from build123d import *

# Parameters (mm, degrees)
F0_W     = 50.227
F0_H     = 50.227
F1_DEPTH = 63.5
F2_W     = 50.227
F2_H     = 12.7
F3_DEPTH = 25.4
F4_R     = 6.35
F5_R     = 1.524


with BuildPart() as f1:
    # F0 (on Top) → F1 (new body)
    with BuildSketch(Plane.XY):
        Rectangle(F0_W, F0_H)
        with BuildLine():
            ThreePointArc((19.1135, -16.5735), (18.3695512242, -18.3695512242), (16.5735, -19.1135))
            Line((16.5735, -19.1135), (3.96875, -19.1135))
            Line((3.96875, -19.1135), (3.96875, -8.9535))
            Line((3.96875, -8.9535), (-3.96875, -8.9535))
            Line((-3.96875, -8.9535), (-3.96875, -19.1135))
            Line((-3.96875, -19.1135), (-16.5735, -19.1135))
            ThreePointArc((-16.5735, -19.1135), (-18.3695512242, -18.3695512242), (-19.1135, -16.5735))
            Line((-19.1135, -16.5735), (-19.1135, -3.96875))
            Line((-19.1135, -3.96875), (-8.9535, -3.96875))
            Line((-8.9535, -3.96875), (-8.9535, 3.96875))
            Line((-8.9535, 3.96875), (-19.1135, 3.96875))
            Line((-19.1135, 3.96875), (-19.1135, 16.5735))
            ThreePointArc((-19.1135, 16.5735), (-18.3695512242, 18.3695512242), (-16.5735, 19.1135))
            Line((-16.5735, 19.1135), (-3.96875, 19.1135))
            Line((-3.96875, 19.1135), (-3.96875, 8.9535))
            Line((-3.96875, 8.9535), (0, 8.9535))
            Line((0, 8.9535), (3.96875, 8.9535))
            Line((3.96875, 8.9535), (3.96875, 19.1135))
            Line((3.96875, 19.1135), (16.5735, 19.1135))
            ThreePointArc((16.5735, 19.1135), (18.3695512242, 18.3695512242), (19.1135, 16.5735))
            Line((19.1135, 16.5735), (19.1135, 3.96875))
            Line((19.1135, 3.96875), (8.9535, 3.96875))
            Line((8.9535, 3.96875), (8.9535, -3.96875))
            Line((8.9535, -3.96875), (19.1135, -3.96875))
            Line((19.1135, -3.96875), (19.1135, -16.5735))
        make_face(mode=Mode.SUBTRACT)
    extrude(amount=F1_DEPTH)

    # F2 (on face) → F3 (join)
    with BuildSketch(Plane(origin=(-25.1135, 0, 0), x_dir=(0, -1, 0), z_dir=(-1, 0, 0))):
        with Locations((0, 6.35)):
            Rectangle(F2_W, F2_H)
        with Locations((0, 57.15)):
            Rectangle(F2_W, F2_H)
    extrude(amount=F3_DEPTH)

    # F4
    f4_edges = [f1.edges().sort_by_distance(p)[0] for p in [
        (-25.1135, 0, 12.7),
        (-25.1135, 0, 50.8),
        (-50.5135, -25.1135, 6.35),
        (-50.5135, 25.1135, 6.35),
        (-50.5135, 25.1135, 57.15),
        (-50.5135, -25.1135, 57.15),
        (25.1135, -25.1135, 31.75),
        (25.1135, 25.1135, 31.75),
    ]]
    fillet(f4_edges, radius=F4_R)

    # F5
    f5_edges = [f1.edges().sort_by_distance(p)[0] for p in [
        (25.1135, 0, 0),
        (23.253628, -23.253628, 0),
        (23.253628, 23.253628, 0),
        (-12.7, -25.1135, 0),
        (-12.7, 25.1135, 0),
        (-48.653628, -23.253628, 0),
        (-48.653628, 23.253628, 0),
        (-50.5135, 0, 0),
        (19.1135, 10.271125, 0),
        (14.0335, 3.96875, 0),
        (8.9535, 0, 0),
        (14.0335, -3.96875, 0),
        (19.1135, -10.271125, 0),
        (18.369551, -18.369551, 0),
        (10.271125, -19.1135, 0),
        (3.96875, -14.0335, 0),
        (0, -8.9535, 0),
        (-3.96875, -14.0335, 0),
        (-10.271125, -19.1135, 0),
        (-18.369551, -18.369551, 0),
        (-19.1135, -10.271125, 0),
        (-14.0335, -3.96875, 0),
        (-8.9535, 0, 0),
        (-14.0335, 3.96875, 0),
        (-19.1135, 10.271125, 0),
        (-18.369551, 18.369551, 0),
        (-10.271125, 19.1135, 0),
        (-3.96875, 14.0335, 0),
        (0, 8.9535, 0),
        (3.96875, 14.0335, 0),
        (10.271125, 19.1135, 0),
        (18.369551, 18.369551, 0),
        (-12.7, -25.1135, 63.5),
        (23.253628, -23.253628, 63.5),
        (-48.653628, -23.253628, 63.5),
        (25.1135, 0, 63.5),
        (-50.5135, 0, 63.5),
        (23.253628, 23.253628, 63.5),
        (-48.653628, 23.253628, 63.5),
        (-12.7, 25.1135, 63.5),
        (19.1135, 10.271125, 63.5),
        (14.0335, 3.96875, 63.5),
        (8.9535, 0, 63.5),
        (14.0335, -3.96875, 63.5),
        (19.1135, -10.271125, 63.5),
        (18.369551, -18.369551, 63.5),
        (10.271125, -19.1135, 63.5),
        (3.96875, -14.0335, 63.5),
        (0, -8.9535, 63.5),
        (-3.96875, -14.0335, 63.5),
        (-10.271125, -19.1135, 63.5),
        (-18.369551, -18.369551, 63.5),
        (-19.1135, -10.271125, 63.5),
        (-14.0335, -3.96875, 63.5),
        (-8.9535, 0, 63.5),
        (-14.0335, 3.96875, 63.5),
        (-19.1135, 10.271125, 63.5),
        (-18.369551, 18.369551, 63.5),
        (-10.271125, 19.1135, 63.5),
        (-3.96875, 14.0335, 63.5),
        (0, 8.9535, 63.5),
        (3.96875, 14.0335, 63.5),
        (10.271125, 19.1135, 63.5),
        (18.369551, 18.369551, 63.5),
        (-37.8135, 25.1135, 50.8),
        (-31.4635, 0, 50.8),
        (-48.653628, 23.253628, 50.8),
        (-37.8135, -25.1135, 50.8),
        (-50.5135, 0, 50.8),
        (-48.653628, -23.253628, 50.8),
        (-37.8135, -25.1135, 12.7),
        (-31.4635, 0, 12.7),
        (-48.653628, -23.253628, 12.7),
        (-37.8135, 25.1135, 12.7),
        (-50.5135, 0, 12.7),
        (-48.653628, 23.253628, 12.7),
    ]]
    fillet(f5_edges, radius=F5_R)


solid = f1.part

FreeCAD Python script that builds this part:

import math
import FreeCAD as App
import Part
import Sketcher

V = App.Vector
Q = App.Units.Quantity


def edges_at(feature, points):
    """Names of the edges that pass closest to the given points."""
    edges = feature.Shape.Edges
    near = lambda p: min(range(len(edges)), key=lambda i: edges[i].distToShape(Part.Vertex(*p))[0])
    return sorted({f"Edge{near(p) + 1}" for p in points})


def add_polygon(sketch, points):
    """Adds a closed chain of lines whose ends are joined by coincident constraints."""
    first, n = sketch.GeometryCount, len(points)
    for a, b in zip(points, points[1:] + points[:1]):
        sketch.addGeometry(Part.LineSegment(App.Vector(*a, 0), App.Vector(*b, 0)), False)
    for i in range(n):
        sketch.addConstraint(Sketcher.Constraint("Coincident", first + i, 2, first + (i + 1) % n, 1))

doc = App.newDocument("Part")
body = doc.addObject("PartDesign::Body", "Body")

sketch1 = body.newObject("Sketcher::SketchObject", "Sketch")
sketch1.AttachmentSupport = (doc.getObject("XY_Plane"), [""])
sketch1.MapMode = "FlatFace"
add_polygon(sketch1, [(-25.1, 25.1), (-25.1, -25.1), (25.1, -25.1), (25.1, 25.1)])
sketch1.addGeometry(Part.LineSegment(V(19.1, -4, 0), V(19.1, -16.6, 0)), False)
sketch1.addGeometry(Part.ArcOfCircle(Part.Circle(V(16.6, -16.6, 0), V(0, 0, 1), 2.5), math.radians(-90), math.radians(0)), False)
sketch1.addGeometry(Part.LineSegment(V(16.6, -19.1, 0), V(4, -19.1, 0)), False)
sketch1.addGeometry(Part.LineSegment(V(4, -19.1, 0), V(4, -9, 0)), False)
sketch1.addGeometry(Part.LineSegment(V(4, -9, 0), V(-4, -9, 0)), False)
sketch1.addGeometry(Part.LineSegment(V(-4, -9, 0), V(-4, -19.1, 0)), False)
sketch1.addGeometry(Part.LineSegment(V(-4, -19.1, 0), V(-16.6, -19.1, 0)), False)
sketch1.addGeometry(Part.ArcOfCircle(Part.Circle(V(-16.6, -16.6, 0), V(0, 0, 1), 2.5), math.radians(180), math.radians(270)), False)
sketch1.addGeometry(Part.LineSegment(V(-19.1, -16.6, 0), V(-19.1, -4, 0)), False)
sketch1.addGeometry(Part.LineSegment(V(-19.1, -4, 0), V(-9, -4, 0)), False)
sketch1.addGeometry(Part.LineSegment(V(-9, -4, 0), V(-9, 4, 0)), False)
sketch1.addGeometry(Part.LineSegment(V(-9, 4, 0), V(-19.1, 4, 0)), False)
sketch1.addGeometry(Part.LineSegment(V(-19.1, 4, 0), V(-19.1, 16.6, 0)), False)
sketch1.addGeometry(Part.ArcOfCircle(Part.Circle(V(-16.6, 16.6, 0), V(0, 0, 1), 2.5), math.radians(90), math.radians(180)), False)
sketch1.addGeometry(Part.LineSegment(V(-16.6, 19.1, 0), V(-4, 19.1, 0)), False)
sketch1.addGeometry(Part.LineSegment(V(-4, 19.1, 0), V(-4, 9, 0)), False)
sketch1.addGeometry(Part.LineSegment(V(-4, 9, 0), V(4, 9, 0)), False)
sketch1.addGeometry(Part.LineSegment(V(4, 9, 0), V(4, 19.1, 0)), False)
sketch1.addGeometry(Part.LineSegment(V(4, 19.1, 0), V(16.6, 19.1, 0)), False)
sketch1.addGeometry(Part.ArcOfCircle(Part.Circle(V(16.6, 16.6, 0), V(0, 0, 1), 2.5), math.radians(0), math.radians(90)), False)
sketch1.addGeometry(Part.LineSegment(V(19.1, 16.6, 0), V(19.1, 4, 0)), False)
sketch1.addGeometry(Part.LineSegment(V(19.1, 4, 0), V(9, 4, 0)), False)
sketch1.addGeometry(Part.LineSegment(V(9, 4, 0), V(9, -4, 0)), False)
sketch1.addGeometry(Part.LineSegment(V(9, -4, 0), V(19.1, -4, 0)), False)
sketch1.addConstraint([
    Sketcher.Constraint("Tangent", 4, 2, 5, 2),
    Sketcher.Constraint("Tangent", 5, 1, 6, 1),
    Sketcher.Constraint("Coincident", 6, 2, 7, 1),
    Sketcher.Constraint("Coincident", 7, 2, 8, 1),
    Sketcher.Constraint("Coincident", 8, 2, 9, 1),
    Sketcher.Constraint("Coincident", 9, 2, 10, 1),
    Sketcher.Constraint("Tangent", 10, 2, 11, 2),
    Sketcher.Constraint("Tangent", 11, 1, 12, 1),
    Sketcher.Constraint("Coincident", 12, 2, 13, 1),
    Sketcher.Constraint("Coincident", 13, 2, 14, 1),
    Sketcher.Constraint("Coincident", 14, 2, 15, 1),
    Sketcher.Constraint("Coincident", 15, 2, 16, 1),
    Sketcher.Constraint("Tangent", 16, 2, 17, 2),
    Sketcher.Constraint("Tangent", 17, 1, 18, 1),
    Sketcher.Constraint("Coincident", 18, 2, 19, 1),
    Sketcher.Constraint("Coincident", 19, 2, 20, 1),
    Sketcher.Constraint("Coincident", 20, 2, 21, 1),
    Sketcher.Constraint("Coincident", 21, 2, 22, 1),
    Sketcher.Constraint("Tangent", 22, 2, 23, 2),
    Sketcher.Constraint("Tangent", 23, 1, 24, 1),
    Sketcher.Constraint("Coincident", 24, 2, 25, 1),
    Sketcher.Constraint("Coincident", 25, 2, 26, 1),
    Sketcher.Constraint("Coincident", 26, 2, 27, 1),
    Sketcher.Constraint("Coincident", 27, 2, 4, 1),
    Sketcher.Constraint("Vertical", 0),
    Sketcher.Constraint("Horizontal", 1),
    Sketcher.Constraint("Vertical", 2),
    Sketcher.Constraint("Horizontal", 3),
    Sketcher.Constraint("Vertical", 4),
    Sketcher.Constraint("Horizontal", 6),
    Sketcher.Constraint("Vertical", 7),
    Sketcher.Constraint("Horizontal", 8),
    Sketcher.Constraint("Vertical", 9),
    Sketcher.Constraint("Horizontal", 10),
    Sketcher.Constraint("Vertical", 12),
    Sketcher.Constraint("Horizontal", 13),
    Sketcher.Constraint("Vertical", 14),
    Sketcher.Constraint("Horizontal", 15),
    Sketcher.Constraint("Vertical", 16),
    Sketcher.Constraint("Horizontal", 18),
    Sketcher.Constraint("Vertical", 19),
    Sketcher.Constraint("Horizontal", 20),
    Sketcher.Constraint("Vertical", 21),
    Sketcher.Constraint("Horizontal", 22),
    Sketcher.Constraint("Vertical", 24),
    Sketcher.Constraint("Horizontal", 25),
    Sketcher.Constraint("Vertical", 26),
    Sketcher.Constraint("Horizontal", 27),
    Sketcher.Constraint("Equal", 5, 11),
    Sketcher.Constraint("Equal", 11, 17),
    Sketcher.Constraint("Equal", 17, 23),
    Sketcher.Constraint("Symmetric", 5, 3, 17, 3, -1, 1),
    Sketcher.Constraint("Symmetric", 11, 3, 23, 3, -1, 1),
    Sketcher.Constraint("Symmetric", 0, 2, 2, 2, -1, 1),
    Sketcher.Constraint("Symmetric", 7, 2, 19, 2, -1, 1),
    Sketcher.Constraint("Symmetric", 13, 2, 25, 2, -1, 1),
    Sketcher.Constraint("Symmetric", 5, 3, 11, 3, -2),
    Sketcher.Constraint("Horizontal", 15, 2, 24, 2),
    Sketcher.Constraint("Horizontal", 13, 2, 26, 2),
    Sketcher.Constraint("Vertical", 9, 2, 18, 2),
    Sketcher.Constraint("Vertical", 7, 2, 20, 2),
    Sketcher.Constraint("Equal", 3, 0),
    Sketcher.Constraint("Equal", 22, 4),
    Sketcher.Constraint("Equal", 27, 7),
    Sketcher.Constraint("Equal", 20, 14),
    Sketcher.Constraint("Radius", 5, Q("0.1 in")),
    Sketcher.Constraint("DistanceX", 13, 1, 13, 2, Q("0.4 in")),
    Sketcher.Constraint("DistanceX", 8, 2, 8, 1, Q("0.3125 in")),
    Sketcher.Constraint("DistanceX", 11, 3, 5, 3, Q("1.305 in")),
    Sketcher.Constraint("DistanceX", 1, 1, 1, 2, 50.227),
])
pad1 = body.newObject("PartDesign::Pad", "Pad")
pad1.Profile = sketch1
pad1.Length = Q("2.5 in")

sketch2 = body.newObject("Sketcher::SketchObject", "Sketch001")
sketch2.AttachmentSupport = (doc.getObject("YZ_Plane"), [""])
sketch2.MapMode = "FlatFace"
sketch2.AttachmentOffset = App.Placement(V(0, 0, -25.1135), App.Rotation())
add_polygon(sketch2, [(25, 13), (25, 0), (-25, 0), (-25, 13)])
add_polygon(sketch2, [(25, 64), (25, 51), (-25, 51), (-25, 64)])
sketch2.addConstraint([
    Sketcher.Constraint("Vertical", 0),
    Sketcher.Constraint("Horizontal", 1),
    Sketcher.Constraint("Vertical", 2),
    Sketcher.Constraint("Horizontal", 3),
    Sketcher.Constraint("Vertical", 4),
    Sketcher.Constraint("Horizontal", 5),
    Sketcher.Constraint("Vertical", 6),
    Sketcher.Constraint("Horizontal", 7),
    Sketcher.Constraint("Symmetric", 0, 2, 1, 2, -1, 1),
    Sketcher.Constraint("Vertical", 3, 2, 4, 2),
    Sketcher.Constraint("Vertical", 2, 2, 5, 2),
    Sketcher.Constraint("Equal", 2, 4),
    Sketcher.Constraint("DistanceY", 0, 2, 0, 1, Q("0.5 in")),
    Sketcher.Constraint("DistanceY", -1, 1, 4, 2, Q("2 in")),
    Sketcher.Constraint("DistanceX", 1, 2, 1, 1, 50.227),
])
pad2 = body.newObject("PartDesign::Pad", "Pad001")
pad2.Profile = sketch2
pad2.Length = Q("1 in")
pad2.Reversed = True
doc.recompute()

fillet = body.newObject("PartDesign::Fillet", "Fillet")
fillet.Base = (pad2, edges_at(pad2, [
    (-25.113, 0, 12.7),
    (-25.113, 0, 50.8),
    (-50.514, -25.113, 6.35),
    (-50.514, 25.113, 6.35),
    (-50.514, 25.113, 57.15),
    (-50.514, -25.113, 57.15),
    (25.113, -25.113, 31.75),
    (25.113, 25.113, 31.75),
]))
fillet.Radius = Q("0.25 in")
doc.recompute()

fillet2 = body.newObject("PartDesign::Fillet", "Fillet001")
fillet2.Base = (fillet, edges_at(fillet, [
    (25.113, 0, 0),
    (23.254, -23.254, 0),
    (23.254, 23.254, 0),
    (-12.7, -25.113, 0),
    (-12.7, 25.113, 0),
    (-48.654, -23.254, 0),
    (-48.654, 23.254, 0),
    (-50.514, 0, 0),
    (19.113, 10.271, 0),
    (14.034, 3.969, 0),
    (8.954, 0, 0),
    (14.034, -3.969, 0),
    (19.113, -10.271, 0),
    (18.37, -18.37, 0),
    (10.271, -19.113, 0),
    (3.969, -14.034, 0),
    (0, -8.954, 0),
    (-3.969, -14.034, 0),
    (-10.271, -19.113, 0),
    (-18.37, -18.37, 0),
    (-19.113, -10.271, 0),
    (-14.034, -3.969, 0),
    (-8.954, 0, 0),
    (-14.034, 3.969, 0),
    (-19.113, 10.271, 0),
    (-18.37, 18.37, 0),
    (-10.271, 19.113, 0),
    (-3.969, 14.034, 0),
    (0, 8.954, 0),
    (3.969, 14.034, 0),
    (10.271, 19.113, 0),
    (18.37, 18.37, 0),
    (-12.7, -25.113, 63.5),
    (23.254, -23.254, 63.5),
    (-48.654, -23.254, 63.5),
    (25.113, 0, 63.5),
    (-50.514, 0, 63.5),
    (23.254, 23.254, 63.5),
    (-48.654, 23.254, 63.5),
    (-12.7, 25.113, 63.5),
    (19.113, 10.271, 63.5),
    (14.034, 3.969, 63.5),
    (8.954, 0, 63.5),
    (14.034, -3.969, 63.5),
    (19.113, -10.271, 63.5),
    (18.37, -18.37, 63.5),
    (10.271, -19.113, 63.5),
    (3.969, -14.034, 63.5),
    (0, -8.954, 63.5),
    (-3.969, -14.034, 63.5),
    (-10.271, -19.113, 63.5),
    (-18.37, -18.37, 63.5),
    (-19.113, -10.271, 63.5),
    (-14.034, -3.969, 63.5),
    (-8.954, 0, 63.5),
    (-14.034, 3.969, 63.5),
    (-19.113, 10.271, 63.5),
    (-18.37, 18.37, 63.5),
    (-10.271, 19.113, 63.5),
    (-3.969, 14.034, 63.5),
    (0, 8.954, 63.5),
    (3.969, 14.034, 63.5),
    (10.271, 19.113, 63.5),
    (18.37, 18.37, 63.5),
    (-37.813, 25.113, 50.8),
    (-31.463, 0, 50.8),
    (-48.654, 23.254, 50.8),
    (-37.813, -25.113, 50.8),
    (-50.514, 0, 50.8),
    (-48.654, -23.254, 50.8),
    (-37.813, -25.113, 12.7),
    (-31.463, 0, 12.7),
    (-48.654, -23.254, 12.7),
    (-37.813, 25.113, 12.7),
    (-50.514, 0, 12.7),
    (-48.654, 23.254, 12.7),
]))
fillet2.Radius = Q("0.06 in")

doc.recompute()
